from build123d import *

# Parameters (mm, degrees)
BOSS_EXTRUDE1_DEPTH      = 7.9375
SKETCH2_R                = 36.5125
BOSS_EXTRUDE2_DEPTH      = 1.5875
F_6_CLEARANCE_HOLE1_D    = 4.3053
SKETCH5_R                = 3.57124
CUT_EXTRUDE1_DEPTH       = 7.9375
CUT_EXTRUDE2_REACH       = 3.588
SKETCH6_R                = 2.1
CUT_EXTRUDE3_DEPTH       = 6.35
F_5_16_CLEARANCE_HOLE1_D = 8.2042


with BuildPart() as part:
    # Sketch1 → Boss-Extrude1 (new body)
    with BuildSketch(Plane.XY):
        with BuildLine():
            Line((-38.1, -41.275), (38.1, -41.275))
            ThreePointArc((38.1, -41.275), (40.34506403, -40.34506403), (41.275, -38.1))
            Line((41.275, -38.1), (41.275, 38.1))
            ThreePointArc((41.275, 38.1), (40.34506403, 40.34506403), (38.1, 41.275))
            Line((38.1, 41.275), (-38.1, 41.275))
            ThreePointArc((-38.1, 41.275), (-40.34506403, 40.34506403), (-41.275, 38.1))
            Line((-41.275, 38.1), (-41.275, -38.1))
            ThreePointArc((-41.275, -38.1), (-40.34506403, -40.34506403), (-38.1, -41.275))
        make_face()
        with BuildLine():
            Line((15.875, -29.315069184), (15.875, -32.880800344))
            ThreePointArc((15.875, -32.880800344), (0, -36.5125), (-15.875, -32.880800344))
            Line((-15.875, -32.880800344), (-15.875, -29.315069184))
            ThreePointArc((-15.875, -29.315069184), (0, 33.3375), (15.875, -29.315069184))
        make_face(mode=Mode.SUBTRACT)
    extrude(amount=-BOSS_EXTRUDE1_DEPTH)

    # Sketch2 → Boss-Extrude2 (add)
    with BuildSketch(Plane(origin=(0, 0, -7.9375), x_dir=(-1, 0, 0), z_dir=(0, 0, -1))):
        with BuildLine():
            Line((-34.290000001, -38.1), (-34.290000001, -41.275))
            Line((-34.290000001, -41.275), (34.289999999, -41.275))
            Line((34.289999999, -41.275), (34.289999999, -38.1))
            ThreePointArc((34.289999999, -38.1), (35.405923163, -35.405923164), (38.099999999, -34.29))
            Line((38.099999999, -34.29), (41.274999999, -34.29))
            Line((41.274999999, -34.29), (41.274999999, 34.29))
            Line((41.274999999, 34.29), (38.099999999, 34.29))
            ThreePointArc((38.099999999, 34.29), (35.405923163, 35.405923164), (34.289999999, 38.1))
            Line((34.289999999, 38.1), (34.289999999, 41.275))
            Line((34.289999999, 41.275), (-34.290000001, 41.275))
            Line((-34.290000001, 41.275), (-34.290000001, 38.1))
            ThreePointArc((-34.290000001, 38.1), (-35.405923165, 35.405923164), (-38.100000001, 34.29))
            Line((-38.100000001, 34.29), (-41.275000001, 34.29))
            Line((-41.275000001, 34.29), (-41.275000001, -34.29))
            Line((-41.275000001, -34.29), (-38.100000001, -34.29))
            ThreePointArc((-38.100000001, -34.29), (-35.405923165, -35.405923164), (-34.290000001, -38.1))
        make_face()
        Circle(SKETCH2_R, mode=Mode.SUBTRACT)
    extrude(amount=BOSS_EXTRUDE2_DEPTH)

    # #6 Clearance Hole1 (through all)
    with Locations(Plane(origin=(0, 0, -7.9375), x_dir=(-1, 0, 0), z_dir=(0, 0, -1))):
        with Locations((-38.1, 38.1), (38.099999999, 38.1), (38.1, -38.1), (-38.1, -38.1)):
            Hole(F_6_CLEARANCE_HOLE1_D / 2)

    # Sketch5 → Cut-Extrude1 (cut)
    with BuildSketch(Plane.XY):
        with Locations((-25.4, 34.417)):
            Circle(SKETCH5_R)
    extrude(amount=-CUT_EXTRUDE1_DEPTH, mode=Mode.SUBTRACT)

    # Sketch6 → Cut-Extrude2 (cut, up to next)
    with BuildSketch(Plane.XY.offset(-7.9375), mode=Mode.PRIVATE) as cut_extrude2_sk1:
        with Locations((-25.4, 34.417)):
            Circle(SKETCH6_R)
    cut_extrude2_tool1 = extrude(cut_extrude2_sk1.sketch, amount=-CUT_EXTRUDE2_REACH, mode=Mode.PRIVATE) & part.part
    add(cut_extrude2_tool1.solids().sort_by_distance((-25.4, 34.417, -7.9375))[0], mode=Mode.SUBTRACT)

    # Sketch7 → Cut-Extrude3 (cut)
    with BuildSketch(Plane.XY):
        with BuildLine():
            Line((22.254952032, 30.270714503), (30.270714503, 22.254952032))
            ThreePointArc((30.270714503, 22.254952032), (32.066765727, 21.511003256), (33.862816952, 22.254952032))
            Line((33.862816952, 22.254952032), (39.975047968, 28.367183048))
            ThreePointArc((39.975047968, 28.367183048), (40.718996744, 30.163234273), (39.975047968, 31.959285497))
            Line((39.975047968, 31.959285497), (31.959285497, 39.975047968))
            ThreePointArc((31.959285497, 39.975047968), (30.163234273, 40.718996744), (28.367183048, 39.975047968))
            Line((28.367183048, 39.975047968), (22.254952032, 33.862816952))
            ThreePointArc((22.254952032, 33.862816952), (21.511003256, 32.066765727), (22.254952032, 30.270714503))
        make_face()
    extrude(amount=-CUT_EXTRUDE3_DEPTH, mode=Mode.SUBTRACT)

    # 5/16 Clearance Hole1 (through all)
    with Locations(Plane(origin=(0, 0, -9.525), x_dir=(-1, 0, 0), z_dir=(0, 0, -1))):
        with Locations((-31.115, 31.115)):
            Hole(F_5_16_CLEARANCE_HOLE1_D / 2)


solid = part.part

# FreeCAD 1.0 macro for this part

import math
import FreeCAD as App
import Part
import Sketcher

V = App.Vector
Q = App.Units.Quantity

doc = App.newDocument("Part")
params = doc.addObject("Spreadsheet::Sheet", "Params")
for row, (alias, value) in enumerate([
    ("sketch1_width", "3 in"),
    ("sketch1_radius", "0.125 in"),
    ("sketch1_radius2", "1.3125 in"),
    ("sketch1_radius3", "1.4375 in"),
    ("pad1_length", "0.3125 in"),
    ("sketch2_radius", "0.15 in"),
    ("sketch2_diameter", "2.875 in"),
    ("sketch2_width", "2.7 in"),
    ("sketch2_width2", "0.125 in"),
    ("pad2_length", "0.0625 in"),
    ("hole_diameter", "0.1695 in"),
    ("pocket1_length", "0.3125 in"),
    ("sketch6_radius", "0.1 in"),
    ("pocket3_length", "0.25 in"),
    ("sketch7_diameter", "0.323 in"),
    ("hole2_diameter", "0.323 in"),
], start=1):
    params.set(f"A{row}", alias)
    params.set(f"B{row}", "=" + value)
    params.setAlias(f"B{row}", alias)

body = doc.addObject("PartDesign::Body", "Body")

sketch1 = body.newObject("Sketcher::SketchObject", "Sketch")
sketch1.AttachmentSupport = (doc.getObject("XY_Plane"), [""])
sketch1.MapMode = "FlatFace"
sketch1.addGeometry([
    Part.LineSegment(V(-38.1, -41.275, 0), V(38.1, -41.275, 0)),
    Part.ArcOfCircle(Part.Circle(V(38.1, -38.1, 0), V(0, 0, 1), 3.175), math.radians(-90), math.radians(0)),
    Part.LineSegment(V(41.275, -38.1, 0), V(41.275, 38.1, 0)),
    Part.ArcOfCircle(Part.Circle(V(38.1, 38.1, 0), V(0, 0, 1), 3.175), math.radians(0), math.radians(90)),
    Part.LineSegment(V(38.1, 41.275, 0), V(-38.1, 41.275, 0)),
    Part.ArcOfCircle(Part.Circle(V(-38.1, 38.1, 0), V(0, 0, 1), 3.175), math.radians(90), math.radians(180)),
    Part.LineSegment(V(-41.275, 38.1, 0), V(-41.275, -38.1, 0)),
    Part.ArcOfCircle(Part.Circle(V(-38.1, -38.1, 0), V(0, 0, 1), 3.175), math.radians(-180), math.radians(-90)),
    Part.ArcOfCircle(Part.Circle(V(0, 0, 0), V(0, 0, 1), 33.3375), math.radians(-61.56311), math.radians(241.56311)),
    Part.LineSegment(V(15.875, -29.315069, 0), V(15.875, -32.8808, 0)),
    Part.ArcOfCircle(Part.Circle(V(0, 0, 0), V(0, 0, 1), 36.5125), math.radians(-115.771462), math.radians(-64.228538)),
    Part.LineSegment(V(-15.875, -32.8808, 0), V(-15.875, -29.315069, 0)),
], False)
sketch1.addConstraint([
    Sketcher.Constraint("Tangent", 0, 2, 1, 1),
    Sketcher.Constraint("Tangent", 1, 2, 2, 1),
    Sketcher.Constraint("Tangent", 2, 2, 3, 1),
    Sketcher.Constraint("Tangent", 3, 2, 4, 1),
    Sketcher.Constraint("Tangent", 4, 2, 5, 1),
    Sketcher.Constraint("Tangent", 5, 2, 6, 1),
    Sketcher.Constraint("Tangent", 6, 2, 7, 1),
    Sketcher.Constraint("Tangent", 7, 2, 0, 1),
    Sketcher.Constraint("Coincident", 8, 1, 9, 1),
    Sketcher.Constraint("Coincident", 9, 2, 10, 2),
    Sketcher.Constraint("Coincident", 10, 1, 11, 1),
    Sketcher.Constraint("Coincident", 11, 2, 8, 2),
    Sketcher.Constraint("Horizontal", 0),
    Sketcher.Constraint("Vertical", 2),
    Sketcher.Constraint("Horizontal", 4),
    Sketcher.Constraint("Vertical", 6),
    Sketcher.Constraint("Vertical", 9),
    Sketcher.Constraint("Vertical", 11),
    Sketcher.Constraint("Coincident", 8, 3, -1, 1),
    Sketcher.Constraint("Coincident", 10, 3, -1, 1),
    Sketcher.Constraint("Equal", 1, 3),
    Sketcher.Constraint("Equal", 3, 5),
    Sketcher.Constraint("Equal", 5, 7),
    Sketcher.Constraint("Symmetric", 1, 3, 5, 3, -1, 1),
    Sketcher.Constraint("Horizontal", 9, 2, 10, 1),
    Sketcher.Constraint("Equal", 4, 2),
    Sketcher.Constraint("DistanceX", 0, 1, 0, 2, Q("3 in")),
    Sketcher.Constraint("Radius", 1, Q("0.125 in")),
    Sketcher.Constraint("Radius", 8, Q("1.3125 in")),
    Sketcher.Constraint("Radius", 10, Q("1.4375 in")),
    Sketcher.Constraint("DistanceX", 8, 1, 1, 2, Q("1 in")),
])
sketch1.setExpression("Constraints[26]", "Params.sketch1_width")
sketch1.setExpression("Constraints[27]", "Params.sketch1_radius")
sketch1.setExpression("Constraints[28]", "Params.sketch1_radius2")
sketch1.setExpression("Constraints[29]", "Params.sketch1_radius3")
pad1 = body.newObject("PartDesign::Pad", "Pad")
pad1.Profile = sketch1
pad1.setExpression("Length", "Params.pad1_length")
pad1.Reversed = True

sketch2 = body.newObject("Sketcher::SketchObject", "Sketch001")
sketch2.AttachmentSupport = (doc.getObject("XY_Plane"), [""])
sketch2.MapMode = "FlatFace"
sketch2.AttachmentOffset = App.Placement(V(0, 0, -0.3125 * 25.4), App.Rotation())
sketch2.addGeometry([
    Part.LineSegment(V(34.29, -38.1, 0), V(34.29, -41.275, 0)),
    Part.LineSegment(V(34.29, -41.275, 0), V(-34.29, -41.275, 0)),
    Part.LineSegment(V(-34.29, -41.275, 0), V(-34.29, -38.1, 0)),
    Part.ArcOfCircle(Part.Circle(V(-38.1, -38.1, 0), V(0, 0, 1), 3.81), math.radians(0), math.radians(90)),
    Part.LineSegment(V(-38.1, -34.29, 0), V(-41.275, -34.29, 0)),
    Part.LineSegment(V(-41.275, -34.29, 0), V(-41.275, 34.29, 0)),
    Part.LineSegment(V(-41.275, 34.29, 0), V(-38.1, 34.29, 0)),
    Part.ArcOfCircle(Part.Circle(V(-38.1, 38.1, 0), V(0, 0, 1), 3.81), math.radians(-90), math.radians(0)),
    Part.LineSegment(V(-34.29, 38.1, 0), V(-34.29, 41.275, 0)),
    Part.LineSegment(V(-34.29, 41.275, 0), V(34.29, 41.275, 0)),
    Part.LineSegment(V(34.29, 41.275, 0), V(34.29, 38.1, 0)),
    Part.ArcOfCircle(Part.Circle(V(38.1, 38.1, 0), V(0, 0, 1), 3.81), math.radians(-180), math.radians(-90)),
    Part.LineSegment(V(38.1, 34.29, 0), V(41.275, 34.29, 0)),
    Part.LineSegment(V(41.275, 34.29, 0), V(41.275, -34.29, 0)),
    Part.LineSegment(V(41.275, -34.29, 0), V(38.1, -34.29, 0)),
    Part.ArcOfCircle(Part.Circle(V(38.1, -38.1, 0), V(0, 0, 1), 3.81), math.radians(90), math.radians(180)),
    Part.Circle(V(0, 0, 0), V(0, 0, 1), 36.5125),
], False)
sketch2.addConstraint([
    Sketcher.Constraint("Coincident", 0, 2, 1, 1),
    Sketcher.Constraint("Coincident", 1, 2, 2, 1),
    Sketcher.Constraint("Tangent", 2, 2, 3, 1),
    Sketcher.Constraint("Tangent", 3, 2, 4, 1),
    Sketcher.Constraint("Coincident", 4, 2, 5, 1),
    Sketcher.Constraint("Coincident", 5, 2, 6, 1),
    Sketcher.Constraint("Tangent", 6, 2, 7, 1),
    Sketcher.Constraint("Tangent", 7, 2, 8, 1),
    Sketcher.Constraint("Coincident", 8, 2, 9, 1),
    Sketcher.Constraint("Coincident", 9, 2, 10, 1),
    Sketcher.Constraint("Tangent", 10, 2, 11, 1),
    Sketcher.Constraint("Tangent", 11, 2, 12, 1),
    Sketcher.Constraint("Coincident", 12, 2, 13, 1),
    Sketcher.Constraint("Coincident", 13, 2, 14, 1),
    Sketcher.Constraint("Tangent", 14, 2, 15, 1),
    Sketcher.Constraint("Tangent", 15, 2, 0, 1),
    Sketcher.Constraint("Vertical", 0),
    Sketcher.Constraint("Horizontal", 1),
    Sketcher.Constraint("Vertical", 2),
    Sketcher.Constraint("Horizontal", 4),
    Sketcher.Constraint("Vertical", 5),
    Sketcher.Constraint("Horizontal", 6),
    Sketcher.Constraint("Vertical", 8),
    Sketcher.Constraint("Horizontal", 9),
    Sketcher.Constraint("Vertical", 10),
    Sketcher.Constraint("Horizontal", 12),
    Sketcher.Constraint("Vertical", 13),
    Sketcher.Constraint("Horizontal", 14),
    Sketcher.Constraint("Coincident", 16, 3, -1, 1),
    Sketcher.Constraint("Equal", 3, 7),
    Sketcher.Constraint("Equal", 7, 11),
    Sketcher.Constraint("Equal", 11, 15),
    Sketcher.Constraint("Symmetric", 3, 3, 11, 3, -1, 1),
    Sketcher.Constraint("Symmetric", 7, 3, 15, 3, -1, 1),
    Sketcher.Constraint("Symmetric", 7, 3, 11, 3, -2),
    Sketcher.Constraint("Equal", 6, 12),
    Sketcher.Constraint("Equal", 14, 0),
    Sketcher.Constraint("Equal", 9, 5),
    Sketcher.Constraint("Equal", 2, 8),
    Sketcher.Constraint("Radius", 3, Q("0.15 in")),
    Sketcher.Constraint("Diameter", 16, Q("2.875 in")),
    Sketcher.Constraint("DistanceX", 1, 2, 1, 1, Q("2.7 in")),
    Sketcher.Constraint("DistanceX", 4, 2, 4, 1, Q("0.125 in")),
])
sketch2.setExpression("Constraints[39]", "Params.sketch2_radius")
sketch2.setExpression("Constraints[40]", "Params.sketch2_diameter")
sketch2.setExpression("Constraints[41]", "Params.sketch2_width")
sketch2.setExpression("Constraints[42]", "Params.sketch2_width2")
pad2 = body.newObject("PartDesign::Pad", "Pad001")
pad2.Profile = sketch2
pad2.setExpression("Length", "Params.pad2_length")
pad2.Reversed = True

sketch3 = body.newObject("Sketcher::SketchObject", "Sketch002")
sketch3.AttachmentSupport = (doc.getObject("XY_Plane"), [""])
sketch3.MapMode = "FlatFace"
sketch3.AttachmentOffset = App.Placement(V(0, 0, -0.3125 * 25.4), App.Rotation())
sketch3.addGeometry([
    Part.Circle(V(38.1, 38.1, 0), V(0, 0, 1), 2.15265),
    Part.Circle(V(-38.1, 38.1, 0), V(0, 0, 1), 2.15265),
    Part.Circle(V(-38.1, -38.1, 0), V(0, 0, 1), 2.15265),
    Part.Circle(V(38.1, -38.1, 0), V(0, 0, 1), 2.15265),
], False)
sketch3.addConstraint([
    Sketcher.Constraint("Equal", 0, 1),
    Sketcher.Constraint("Equal", 1, 2),
    Sketcher.Constraint("Equal", 2, 3),
    Sketcher.Constraint("Symmetric", 0, 3, 2, 3, -1, 1),
    Sketcher.Constraint("Symmetric", 1, 3, 3, 3, -1, 1),
    Sketcher.Constraint("Symmetric", 0, 3, 1, 3, -2),
    Sketcher.Constraint("DistanceX", 1, 3, 0, 3, Q("3 in")),
    Sketcher.Constraint("DistanceY", 2, 3, 1, 3, Q("3 in")),
    Sketcher.Constraint("Diameter", 0, Q("0.1695 in")),
])
doc.recompute()
hole = body.newObject("PartDesign::Hole", "Hole")
hole.Profile = sketch3
hole.ThreadType = "None"
hole.setExpression("Diameter", "Params.hole_diameter")
hole.DepthType = "ThroughAll"
hole.Reversed = True

sketch4 = body.newObject("Sketcher::SketchObject", "Sketch003")
sketch4.AttachmentSupport = (doc.getObject("XY_Plane"), [""])
sketch4.MapMode = "FlatFace"
sketch4.addGeometry(Part.Circle(V(-25.4, 34.417, 0), V(0, 0, 1), 3.57124), False)
sketch4.addConstraint([
    Sketcher.Constraint("DistanceX", 0, 3, -1, 1, Q("1 in")),
    Sketcher.Constraint("Diameter", 0, Q("0.2812 in")),
    Sketcher.Constraint("DistanceY", -1, 1, 0, 3, Q("1.355 in")),
])
pocket1 = body.newObject("PartDesign::Pocket", "Pocket")
pocket1.Profile = sketch4
pocket1.setExpression("Length", "Params.pocket1_length")

sketch5 = body.newObject("Sketcher::SketchObject", "Sketch004")
sketch5.AttachmentSupport = (doc.getObject("XY_Plane"), [""])
sketch5.MapMode = "FlatFace"
sketch5.AttachmentOffset = App.Placement(V(0, 0, -0.3125 * 25.4), App.Rotation())
sketch5.addGeometry(Part.Circle(V(-25.4, 34.417, 0), V(0, 0, 1), 2.1), False)
sketch5.addConstraint([
    Sketcher.Constraint("DistanceX", 0, 3, -1, 1, Q("1 in")),
    Sketcher.Constraint("Diameter", 0, Q("4.2 mm")),
    Sketcher.Constraint("DistanceY", -1, 1, 0, 3, Q("1.355 in")),
])
pocket2 = body.newObject("PartDesign::Pocket", "Pocket001")
pocket2.Profile = sketch5
pocket2.Type = "UpToFirst"

sketch6 = body.newObject("Sketcher::SketchObject", "Sketch005")
sketch6.AttachmentSupport = (doc.getObject("XY_Plane"), [""])
sketch6.MapMode = "FlatFace"
sketch6.addGeometry([
    Part.LineSegment(V(22.254952, 30.270715, 0), V(30.270715, 22.254952, 0)),
    Part.ArcOfCircle(Part.Circle(V(32.066766, 24.051003, 0), V(0, 0, 1), 2.54), math.radians(-135), math.radians(-45)),
    Part.LineSegment(V(33.862817, 22.254952, 0), V(39.975048, 28.367183, 0)),
    Part.ArcOfCircle(Part.Circle(V(38.178997, 30.163234, 0), V(0, 0, 1), 2.54), math.radians(-45), math.radians(45)),
    Part.LineSegment(V(39.975048, 31.959285, 0), V(31.959285, 39.975048, 0)),
    Part.ArcOfCircle(Part.Circle(V(30.163234, 38.178997, 0), V(0, 0, 1), 2.54), math.radians(45), math.radians(135)),
    Part.LineSegment(V(28.367183, 39.975048, 0), V(22.254952, 33.862817, 0)),
    Part.ArcOfCircle(Part.Circle(V(24.051003, 32.066766, 0), V(0, 0, 1), 2.54), math.radians(135), math.radians(225)),
], False)
sketch6.addConstraint([
    Sketcher.Constraint("Tangent", 0, 2, 1, 1),
    Sketcher.Constraint("Tangent", 1, 2, 2, 1),
    Sketcher.Constraint("Tangent", 2, 2, 3, 1),
    Sketcher.Constraint("Tangent", 3, 2, 4, 1),
    Sketcher.Constraint("Tangent", 4, 2, 5, 1),
    Sketcher.Constraint("Tangent", 5, 2, 6, 1),
    Sketcher.Constraint("Tangent", 6, 2, 7, 1),
    Sketcher.Constraint("Tangent", 7, 2, 0, 1),
    Sketcher.Constraint("Equal", 1, 3),
    Sketcher.Constraint("Equal", 3, 5),
    Sketcher.Constraint("Equal", 5, 7),
    Sketcher.Constraint("Perpendicular", 0, 2),
    Sketcher.Constraint("Perpendicular", 2, 4),
    Sketcher.Constraint("Perpendicular", 4, 6),
    Sketcher.Constraint("Horizontal", 0, 2, 1, 2),
    Sketcher.Constraint("Radius", 1, Q("0.1 in")),
    Sketcher.Constraint("Distance", 0, Q("11.336 mm")),
    Sketcher.Constraint("Distance", 2, Q("8.644 mm")),
    Sketcher.Constraint("DistanceX", -1, 1, 1, 3, Q("32.066766 mm")),
    Sketcher.Constraint("DistanceY", -1, 1, 1, 3, Q("24.051003 mm")),
])
sketch6.setExpression("Constraints[15]", "Params.sketch6_radius")
pocket3 = body.newObject("PartDesign::Pocket", "Pocket002")
pocket3.Profile = sketch6
pocket3.setExpression("Length", "Params.pocket3_length")

sketch7 = body.newObject("Sketcher::SketchObject", "Sketch006")
sketch7.AttachmentSupport = (doc.getObject("XY_Plane"), [""])
sketch7.MapMode = "FlatFace"
sketch7.AttachmentOffset = App.Placement(V(0, 0, -0.375 * 25.4), App.Rotation())
sketch7.addGeometry(Part.Circle(V(31.115, 31.115, 0), V(0, 0, 1), 4.1021), False)
sketch7.addConstraint([
    Sketcher.Constraint("Diameter", 0, Q("0.323 in")),
    Sketcher.Constraint("DistanceX", -1, 1, 0, 3, Q("1.225 in")),
    Sketcher.Constraint("DistanceY", -1, 1, 0, 3, Q("1.225 in")),
])
sketch7.setExpression("Constraints[0]", "Params.sketch7_diameter")
doc.recompute()
hole2 = body.newObject("PartDesign::Hole", "Hole001")
hole2.Profile = sketch7
hole2.ThreadType = "None"
hole2.setExpression("Diameter", "Params.hole2_diameter")
hole2.DepthType = "ThroughAll"
hole2.Reversed = True

doc.recompute()
